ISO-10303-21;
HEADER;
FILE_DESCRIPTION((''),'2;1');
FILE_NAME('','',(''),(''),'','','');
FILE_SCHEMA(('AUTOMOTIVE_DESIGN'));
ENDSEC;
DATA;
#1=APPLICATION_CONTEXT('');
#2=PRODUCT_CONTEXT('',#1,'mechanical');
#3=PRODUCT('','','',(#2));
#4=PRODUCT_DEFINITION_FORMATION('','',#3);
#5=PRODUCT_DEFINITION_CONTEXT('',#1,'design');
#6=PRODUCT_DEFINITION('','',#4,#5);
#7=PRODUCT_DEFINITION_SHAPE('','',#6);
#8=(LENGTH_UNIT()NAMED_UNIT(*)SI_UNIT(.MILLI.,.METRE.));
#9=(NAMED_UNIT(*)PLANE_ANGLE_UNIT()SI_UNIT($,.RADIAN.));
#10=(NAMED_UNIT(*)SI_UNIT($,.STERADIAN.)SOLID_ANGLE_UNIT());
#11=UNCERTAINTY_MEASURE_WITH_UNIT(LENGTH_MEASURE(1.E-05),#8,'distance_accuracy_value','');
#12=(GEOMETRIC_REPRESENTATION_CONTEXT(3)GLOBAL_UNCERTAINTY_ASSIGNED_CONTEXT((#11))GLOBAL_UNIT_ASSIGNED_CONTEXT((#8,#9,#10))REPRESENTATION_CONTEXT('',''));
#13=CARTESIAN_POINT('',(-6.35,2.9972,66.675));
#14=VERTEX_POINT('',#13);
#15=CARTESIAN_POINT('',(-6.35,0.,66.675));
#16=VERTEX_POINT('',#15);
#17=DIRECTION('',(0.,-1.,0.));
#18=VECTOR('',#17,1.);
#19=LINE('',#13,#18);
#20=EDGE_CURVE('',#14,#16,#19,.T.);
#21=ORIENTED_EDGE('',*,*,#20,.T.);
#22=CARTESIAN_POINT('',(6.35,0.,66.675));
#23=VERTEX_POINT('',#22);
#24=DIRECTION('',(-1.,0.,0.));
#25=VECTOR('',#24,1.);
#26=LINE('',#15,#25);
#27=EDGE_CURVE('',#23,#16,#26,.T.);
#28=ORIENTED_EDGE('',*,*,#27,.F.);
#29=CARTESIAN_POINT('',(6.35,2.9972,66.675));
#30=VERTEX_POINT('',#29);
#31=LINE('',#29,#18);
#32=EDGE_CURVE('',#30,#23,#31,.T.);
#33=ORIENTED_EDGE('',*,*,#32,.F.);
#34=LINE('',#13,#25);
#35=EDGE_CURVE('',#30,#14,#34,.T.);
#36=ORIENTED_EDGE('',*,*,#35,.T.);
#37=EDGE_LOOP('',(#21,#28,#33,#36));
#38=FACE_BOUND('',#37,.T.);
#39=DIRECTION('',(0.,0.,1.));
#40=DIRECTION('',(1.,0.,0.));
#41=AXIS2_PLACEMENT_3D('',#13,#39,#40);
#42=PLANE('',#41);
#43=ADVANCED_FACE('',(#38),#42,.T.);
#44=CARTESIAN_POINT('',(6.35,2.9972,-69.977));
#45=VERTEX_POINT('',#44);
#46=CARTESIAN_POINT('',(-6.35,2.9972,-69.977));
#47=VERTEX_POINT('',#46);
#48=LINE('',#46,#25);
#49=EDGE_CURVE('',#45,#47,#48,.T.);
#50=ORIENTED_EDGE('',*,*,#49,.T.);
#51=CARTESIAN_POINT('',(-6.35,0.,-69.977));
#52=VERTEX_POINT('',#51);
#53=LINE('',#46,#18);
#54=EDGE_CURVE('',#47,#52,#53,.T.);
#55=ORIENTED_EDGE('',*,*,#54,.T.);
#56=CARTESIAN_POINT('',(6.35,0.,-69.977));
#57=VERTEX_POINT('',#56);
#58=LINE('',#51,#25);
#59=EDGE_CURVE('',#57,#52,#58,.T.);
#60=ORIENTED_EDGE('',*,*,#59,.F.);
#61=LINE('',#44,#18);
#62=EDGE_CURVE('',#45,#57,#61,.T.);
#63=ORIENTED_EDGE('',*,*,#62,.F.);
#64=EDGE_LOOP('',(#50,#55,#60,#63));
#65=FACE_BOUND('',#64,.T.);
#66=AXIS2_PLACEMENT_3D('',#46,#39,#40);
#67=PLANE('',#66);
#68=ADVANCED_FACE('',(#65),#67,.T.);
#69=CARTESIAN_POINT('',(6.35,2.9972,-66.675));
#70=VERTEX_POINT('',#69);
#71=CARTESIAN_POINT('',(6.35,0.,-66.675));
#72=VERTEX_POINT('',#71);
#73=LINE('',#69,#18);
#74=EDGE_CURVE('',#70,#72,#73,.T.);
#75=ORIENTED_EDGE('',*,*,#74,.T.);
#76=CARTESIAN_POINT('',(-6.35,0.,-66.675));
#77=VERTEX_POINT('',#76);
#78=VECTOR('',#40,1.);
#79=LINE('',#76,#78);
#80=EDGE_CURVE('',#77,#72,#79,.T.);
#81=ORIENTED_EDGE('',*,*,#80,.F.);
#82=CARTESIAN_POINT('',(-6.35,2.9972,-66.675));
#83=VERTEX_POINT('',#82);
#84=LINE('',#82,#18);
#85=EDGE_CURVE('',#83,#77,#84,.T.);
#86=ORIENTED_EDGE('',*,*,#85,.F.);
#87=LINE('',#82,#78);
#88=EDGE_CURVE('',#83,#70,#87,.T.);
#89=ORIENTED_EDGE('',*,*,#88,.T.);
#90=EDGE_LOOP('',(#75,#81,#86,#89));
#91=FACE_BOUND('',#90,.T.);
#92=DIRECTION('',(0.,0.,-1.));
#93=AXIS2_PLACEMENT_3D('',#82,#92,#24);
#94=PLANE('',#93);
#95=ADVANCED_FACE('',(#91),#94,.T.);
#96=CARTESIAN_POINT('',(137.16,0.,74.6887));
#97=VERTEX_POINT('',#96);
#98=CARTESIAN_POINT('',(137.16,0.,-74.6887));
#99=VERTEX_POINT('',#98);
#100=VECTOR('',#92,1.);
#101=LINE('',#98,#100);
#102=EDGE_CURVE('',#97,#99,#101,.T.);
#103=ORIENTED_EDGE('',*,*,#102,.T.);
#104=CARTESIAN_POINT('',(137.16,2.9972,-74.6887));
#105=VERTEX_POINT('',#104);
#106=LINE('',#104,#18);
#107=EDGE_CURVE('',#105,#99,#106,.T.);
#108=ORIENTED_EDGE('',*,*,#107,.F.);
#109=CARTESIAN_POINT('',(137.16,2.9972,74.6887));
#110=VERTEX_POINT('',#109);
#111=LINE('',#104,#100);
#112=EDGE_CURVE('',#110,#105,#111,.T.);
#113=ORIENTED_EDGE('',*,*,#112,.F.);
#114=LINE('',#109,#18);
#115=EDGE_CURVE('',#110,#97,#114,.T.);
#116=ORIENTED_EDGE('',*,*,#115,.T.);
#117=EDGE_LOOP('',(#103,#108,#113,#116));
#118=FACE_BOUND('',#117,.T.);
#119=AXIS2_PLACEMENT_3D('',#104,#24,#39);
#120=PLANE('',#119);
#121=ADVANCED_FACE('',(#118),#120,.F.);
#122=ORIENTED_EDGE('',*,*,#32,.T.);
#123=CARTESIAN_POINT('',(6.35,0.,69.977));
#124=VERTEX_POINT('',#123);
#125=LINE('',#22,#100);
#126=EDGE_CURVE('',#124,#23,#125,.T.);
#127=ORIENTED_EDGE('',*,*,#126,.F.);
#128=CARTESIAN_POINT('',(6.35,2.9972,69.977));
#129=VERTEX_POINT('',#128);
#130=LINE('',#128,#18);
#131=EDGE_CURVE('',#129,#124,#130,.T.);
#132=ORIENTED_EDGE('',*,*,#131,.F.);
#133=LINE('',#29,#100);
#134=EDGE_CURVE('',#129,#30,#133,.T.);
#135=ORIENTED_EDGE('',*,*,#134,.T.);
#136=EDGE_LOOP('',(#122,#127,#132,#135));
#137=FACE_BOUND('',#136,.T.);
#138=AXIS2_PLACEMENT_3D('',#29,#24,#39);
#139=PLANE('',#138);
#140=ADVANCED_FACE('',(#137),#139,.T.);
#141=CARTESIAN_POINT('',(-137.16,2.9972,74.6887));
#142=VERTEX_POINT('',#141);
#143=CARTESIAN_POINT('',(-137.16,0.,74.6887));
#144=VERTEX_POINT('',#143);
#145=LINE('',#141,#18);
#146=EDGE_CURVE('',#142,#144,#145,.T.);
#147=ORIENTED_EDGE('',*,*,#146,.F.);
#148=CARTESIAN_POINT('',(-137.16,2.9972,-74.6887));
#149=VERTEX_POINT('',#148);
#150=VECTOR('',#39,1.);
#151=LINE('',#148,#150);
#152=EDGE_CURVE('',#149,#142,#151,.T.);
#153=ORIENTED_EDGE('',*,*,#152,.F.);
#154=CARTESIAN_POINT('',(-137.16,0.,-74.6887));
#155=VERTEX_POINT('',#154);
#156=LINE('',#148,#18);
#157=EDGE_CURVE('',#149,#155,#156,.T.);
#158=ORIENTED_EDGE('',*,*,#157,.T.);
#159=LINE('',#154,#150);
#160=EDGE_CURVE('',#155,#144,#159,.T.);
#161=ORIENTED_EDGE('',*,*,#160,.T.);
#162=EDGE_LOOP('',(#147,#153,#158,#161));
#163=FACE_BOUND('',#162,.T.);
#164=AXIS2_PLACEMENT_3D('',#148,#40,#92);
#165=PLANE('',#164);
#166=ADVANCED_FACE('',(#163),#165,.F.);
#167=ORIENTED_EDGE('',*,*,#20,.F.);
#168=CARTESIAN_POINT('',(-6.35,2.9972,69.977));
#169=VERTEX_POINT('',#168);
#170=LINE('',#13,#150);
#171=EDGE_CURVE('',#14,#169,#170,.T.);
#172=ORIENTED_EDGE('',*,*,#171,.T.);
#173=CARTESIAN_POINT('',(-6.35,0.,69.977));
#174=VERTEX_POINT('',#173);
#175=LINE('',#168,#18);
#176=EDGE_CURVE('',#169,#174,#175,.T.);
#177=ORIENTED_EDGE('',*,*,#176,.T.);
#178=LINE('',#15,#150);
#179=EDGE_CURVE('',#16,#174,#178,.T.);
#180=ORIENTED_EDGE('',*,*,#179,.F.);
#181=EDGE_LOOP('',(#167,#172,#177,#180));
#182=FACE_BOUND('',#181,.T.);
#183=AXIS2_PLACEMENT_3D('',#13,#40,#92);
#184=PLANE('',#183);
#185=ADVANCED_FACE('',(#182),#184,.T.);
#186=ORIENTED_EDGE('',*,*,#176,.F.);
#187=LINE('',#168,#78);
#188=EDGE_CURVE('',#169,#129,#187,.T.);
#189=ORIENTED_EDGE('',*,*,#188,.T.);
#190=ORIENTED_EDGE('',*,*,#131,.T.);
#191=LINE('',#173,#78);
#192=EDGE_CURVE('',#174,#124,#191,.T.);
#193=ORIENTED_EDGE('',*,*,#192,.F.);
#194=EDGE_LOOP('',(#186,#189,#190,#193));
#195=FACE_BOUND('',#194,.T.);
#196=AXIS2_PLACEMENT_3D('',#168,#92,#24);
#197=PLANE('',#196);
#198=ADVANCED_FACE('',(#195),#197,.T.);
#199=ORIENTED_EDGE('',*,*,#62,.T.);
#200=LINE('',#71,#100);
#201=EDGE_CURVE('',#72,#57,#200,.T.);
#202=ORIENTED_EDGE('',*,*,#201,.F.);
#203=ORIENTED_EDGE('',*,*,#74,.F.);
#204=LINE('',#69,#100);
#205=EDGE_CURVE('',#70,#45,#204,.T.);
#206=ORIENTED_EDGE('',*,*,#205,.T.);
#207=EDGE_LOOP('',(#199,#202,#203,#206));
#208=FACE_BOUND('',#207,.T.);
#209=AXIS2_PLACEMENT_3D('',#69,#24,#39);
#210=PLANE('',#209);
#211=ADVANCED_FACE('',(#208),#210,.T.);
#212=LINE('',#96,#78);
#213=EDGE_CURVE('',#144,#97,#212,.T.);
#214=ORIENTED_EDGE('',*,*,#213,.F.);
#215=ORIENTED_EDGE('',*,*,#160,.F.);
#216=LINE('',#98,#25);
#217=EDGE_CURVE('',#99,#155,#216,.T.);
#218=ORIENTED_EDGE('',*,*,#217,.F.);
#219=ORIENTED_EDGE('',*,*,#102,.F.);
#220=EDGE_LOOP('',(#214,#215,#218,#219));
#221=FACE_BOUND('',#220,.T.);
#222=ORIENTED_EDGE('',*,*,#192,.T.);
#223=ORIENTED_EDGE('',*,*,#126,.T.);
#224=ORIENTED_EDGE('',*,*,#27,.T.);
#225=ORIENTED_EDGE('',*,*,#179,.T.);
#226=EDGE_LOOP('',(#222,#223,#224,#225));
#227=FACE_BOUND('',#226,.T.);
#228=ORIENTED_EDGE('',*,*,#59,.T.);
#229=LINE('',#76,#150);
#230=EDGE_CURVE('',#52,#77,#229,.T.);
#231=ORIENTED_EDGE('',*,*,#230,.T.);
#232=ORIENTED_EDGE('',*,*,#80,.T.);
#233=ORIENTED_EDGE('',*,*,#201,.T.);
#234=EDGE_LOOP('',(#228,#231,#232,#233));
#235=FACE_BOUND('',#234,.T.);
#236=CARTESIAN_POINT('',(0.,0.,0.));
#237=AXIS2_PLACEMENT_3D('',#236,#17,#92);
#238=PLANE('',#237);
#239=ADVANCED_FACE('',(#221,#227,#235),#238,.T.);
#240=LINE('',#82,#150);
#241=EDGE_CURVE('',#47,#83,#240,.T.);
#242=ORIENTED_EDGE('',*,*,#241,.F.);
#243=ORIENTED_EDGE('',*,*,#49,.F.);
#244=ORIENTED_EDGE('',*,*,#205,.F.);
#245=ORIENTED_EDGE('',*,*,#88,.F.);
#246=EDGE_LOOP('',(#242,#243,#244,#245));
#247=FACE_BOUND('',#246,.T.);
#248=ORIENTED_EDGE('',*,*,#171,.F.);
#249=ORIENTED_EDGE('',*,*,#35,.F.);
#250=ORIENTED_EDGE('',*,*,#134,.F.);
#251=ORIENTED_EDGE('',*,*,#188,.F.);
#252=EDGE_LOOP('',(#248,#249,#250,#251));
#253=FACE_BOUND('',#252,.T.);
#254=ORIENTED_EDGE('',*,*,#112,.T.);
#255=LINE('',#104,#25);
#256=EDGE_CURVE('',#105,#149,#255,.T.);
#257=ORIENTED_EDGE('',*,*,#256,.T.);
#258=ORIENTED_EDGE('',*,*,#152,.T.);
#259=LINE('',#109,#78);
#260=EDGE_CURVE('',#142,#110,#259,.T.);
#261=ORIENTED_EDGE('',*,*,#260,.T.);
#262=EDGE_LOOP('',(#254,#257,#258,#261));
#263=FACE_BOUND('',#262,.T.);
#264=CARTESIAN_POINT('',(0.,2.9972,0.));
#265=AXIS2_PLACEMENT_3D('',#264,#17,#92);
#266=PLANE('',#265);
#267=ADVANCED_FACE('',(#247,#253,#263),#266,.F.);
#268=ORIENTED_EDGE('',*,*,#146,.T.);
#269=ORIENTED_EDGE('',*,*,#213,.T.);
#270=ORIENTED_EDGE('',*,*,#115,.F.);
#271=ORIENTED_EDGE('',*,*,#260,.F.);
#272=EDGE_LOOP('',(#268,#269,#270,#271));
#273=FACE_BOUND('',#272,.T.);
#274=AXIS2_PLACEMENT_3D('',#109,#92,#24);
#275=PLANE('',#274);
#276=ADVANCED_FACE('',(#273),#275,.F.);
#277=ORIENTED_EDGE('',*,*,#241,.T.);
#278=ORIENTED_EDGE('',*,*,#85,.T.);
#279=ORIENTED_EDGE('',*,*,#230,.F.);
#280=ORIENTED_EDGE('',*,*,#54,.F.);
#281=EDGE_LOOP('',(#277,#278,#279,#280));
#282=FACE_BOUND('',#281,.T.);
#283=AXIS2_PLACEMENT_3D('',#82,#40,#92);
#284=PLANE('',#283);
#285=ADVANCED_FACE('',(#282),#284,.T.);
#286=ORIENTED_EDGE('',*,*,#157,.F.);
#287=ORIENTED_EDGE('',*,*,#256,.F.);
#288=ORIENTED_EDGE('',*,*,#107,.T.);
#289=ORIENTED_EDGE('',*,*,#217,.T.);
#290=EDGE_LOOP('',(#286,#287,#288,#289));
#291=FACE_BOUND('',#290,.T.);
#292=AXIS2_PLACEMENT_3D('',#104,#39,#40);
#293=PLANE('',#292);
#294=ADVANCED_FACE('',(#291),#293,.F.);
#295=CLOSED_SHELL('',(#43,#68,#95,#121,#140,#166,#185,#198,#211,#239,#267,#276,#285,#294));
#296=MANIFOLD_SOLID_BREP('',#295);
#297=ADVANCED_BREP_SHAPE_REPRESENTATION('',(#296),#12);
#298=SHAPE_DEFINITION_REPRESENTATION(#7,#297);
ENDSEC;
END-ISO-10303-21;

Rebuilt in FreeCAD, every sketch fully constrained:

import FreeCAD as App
import Part
import Sketcher
Q = App.Units.Quantity

doc = App.newDocument("Part")
body = doc.addObject("PartDesign::Body", "Body")

sketch1 = body.newObject("Sketcher::SketchObject", "Sketch")
sketch1.AttachmentSupport = (doc.getObject("XZ_Plane"), [""])
sketch1.MapMode = "FlatFace"
sketch1.addGeometry([
    Part.LineSegment(App.Vector(-137.2, -74.7, 0), App.Vector(-137.2, 74.7, 0)),
    Part.LineSegment(App.Vector(-137.2, 74.7, 0), App.Vector(137.2, 74.7, 0)),
    Part.LineSegment(App.Vector(137.2, 74.7, 0), App.Vector(137.2, -74.7, 0)),
    Part.LineSegment(App.Vector(137.2, -74.7, 0), App.Vector(-137.2, -74.7, 0)),
    Part.LineSegment(App.Vector(6.3, 70, 0), App.Vector(-6.3, 70, 0)),
    Part.LineSegment(App.Vector(-6.3, 70, 0), App.Vector(-6.3, 66.7, 0)),
    Part.LineSegment(App.Vector(-6.3, 66.7, 0), App.Vector(6.3, 66.7, 0)),
    Part.LineSegment(App.Vector(6.3, 66.7, 0), App.Vector(6.3, 70, 0)),
    Part.LineSegment(App.Vector(6.3, -66.7, 0), App.Vector(-6.3, -66.7, 0)),
    Part.LineSegment(App.Vector(-6.3, -66.7, 0), App.Vector(-6.3, -70, 0)),
    Part.LineSegment(App.Vector(-6.3, -70, 0), App.Vector(6.3, -70, 0)),
    Part.LineSegment(App.Vector(6.3, -70, 0), App.Vector(6.3, -66.7, 0)),
], False)
sketch1.addConstraint([
    Sketcher.Constraint("Coincident", 0, 2, 1, 1),
    Sketcher.Constraint("Coincident", 1, 2, 2, 1),
    Sketcher.Constraint("Coincident", 2, 2, 3, 1),
    Sketcher.Constraint("Coincident", 3, 2, 0, 1),
    Sketcher.Constraint("Coincident", 4, 2, 5, 1),
    Sketcher.Constraint("Coincident", 5, 2, 6, 1),
    Sketcher.Constraint("Coincident", 6, 2, 7, 1),
    Sketcher.Constraint("Coincident", 7, 2, 4, 1),
    Sketcher.Constraint("Coincident", 8, 2, 9, 1),
    Sketcher.Constraint("Coincident", 9, 2, 10, 1),
    Sketcher.Constraint("Coincident", 10, 2, 11, 1),
    Sketcher.Constraint("Coincident", 11, 2, 8, 1),
    Sketcher.Constraint("Vertical", 0),
    Sketcher.Constraint("Horizontal", 1),
    Sketcher.Constraint("Vertical", 2),
    Sketcher.Constraint("Horizontal", 3),
    Sketcher.Constraint("Horizontal", 4),
    Sketcher.Constraint("Vertical", 5),
    Sketcher.Constraint("Horizontal", 6),
    Sketcher.Constraint("Vertical", 7),
    Sketcher.Constraint("Horizontal", 8),
    Sketcher.Constraint("Vertical", 9),
    Sketcher.Constraint("Horizontal", 10),
    Sketcher.Constraint("Vertical", 11),
    Sketcher.Constraint("Symmetric", 0, 2, 2, 2, -1, 1),
    Sketcher.Constraint("Symmetric", 6, 2, 8, 2, -1, 1),
    Sketcher.Constraint("Symmetric", 4, 2, 10, 2, -1, 1),
    Sketcher.Constraint("Vertical", 5, 2, 8, 2),
    Sketcher.Constraint("DistanceX", 1, 1, 1, 2, Q("10.8 in")),
    Sketcher.Constraint("DistanceX", 4, 2, 4, 1, Q("0.5 in")),
    Sketcher.Constraint("DistanceY", 5, 2, 5, 1, Q("0.13 in")),
    Sketcher.Constraint("DistanceY", 0, 1, 0, 2, Q("5.881 in")),
    Sketcher.Constraint("DistanceY", 8, 2, 5, 2, Q("5.25 in")),
])
pad1 = body.newObject("PartDesign::Pad", "Pad")
pad1.Profile = sketch1
pad1.Length = Q("0.118 in")
pad1.Reversed = True

doc.recompute()
